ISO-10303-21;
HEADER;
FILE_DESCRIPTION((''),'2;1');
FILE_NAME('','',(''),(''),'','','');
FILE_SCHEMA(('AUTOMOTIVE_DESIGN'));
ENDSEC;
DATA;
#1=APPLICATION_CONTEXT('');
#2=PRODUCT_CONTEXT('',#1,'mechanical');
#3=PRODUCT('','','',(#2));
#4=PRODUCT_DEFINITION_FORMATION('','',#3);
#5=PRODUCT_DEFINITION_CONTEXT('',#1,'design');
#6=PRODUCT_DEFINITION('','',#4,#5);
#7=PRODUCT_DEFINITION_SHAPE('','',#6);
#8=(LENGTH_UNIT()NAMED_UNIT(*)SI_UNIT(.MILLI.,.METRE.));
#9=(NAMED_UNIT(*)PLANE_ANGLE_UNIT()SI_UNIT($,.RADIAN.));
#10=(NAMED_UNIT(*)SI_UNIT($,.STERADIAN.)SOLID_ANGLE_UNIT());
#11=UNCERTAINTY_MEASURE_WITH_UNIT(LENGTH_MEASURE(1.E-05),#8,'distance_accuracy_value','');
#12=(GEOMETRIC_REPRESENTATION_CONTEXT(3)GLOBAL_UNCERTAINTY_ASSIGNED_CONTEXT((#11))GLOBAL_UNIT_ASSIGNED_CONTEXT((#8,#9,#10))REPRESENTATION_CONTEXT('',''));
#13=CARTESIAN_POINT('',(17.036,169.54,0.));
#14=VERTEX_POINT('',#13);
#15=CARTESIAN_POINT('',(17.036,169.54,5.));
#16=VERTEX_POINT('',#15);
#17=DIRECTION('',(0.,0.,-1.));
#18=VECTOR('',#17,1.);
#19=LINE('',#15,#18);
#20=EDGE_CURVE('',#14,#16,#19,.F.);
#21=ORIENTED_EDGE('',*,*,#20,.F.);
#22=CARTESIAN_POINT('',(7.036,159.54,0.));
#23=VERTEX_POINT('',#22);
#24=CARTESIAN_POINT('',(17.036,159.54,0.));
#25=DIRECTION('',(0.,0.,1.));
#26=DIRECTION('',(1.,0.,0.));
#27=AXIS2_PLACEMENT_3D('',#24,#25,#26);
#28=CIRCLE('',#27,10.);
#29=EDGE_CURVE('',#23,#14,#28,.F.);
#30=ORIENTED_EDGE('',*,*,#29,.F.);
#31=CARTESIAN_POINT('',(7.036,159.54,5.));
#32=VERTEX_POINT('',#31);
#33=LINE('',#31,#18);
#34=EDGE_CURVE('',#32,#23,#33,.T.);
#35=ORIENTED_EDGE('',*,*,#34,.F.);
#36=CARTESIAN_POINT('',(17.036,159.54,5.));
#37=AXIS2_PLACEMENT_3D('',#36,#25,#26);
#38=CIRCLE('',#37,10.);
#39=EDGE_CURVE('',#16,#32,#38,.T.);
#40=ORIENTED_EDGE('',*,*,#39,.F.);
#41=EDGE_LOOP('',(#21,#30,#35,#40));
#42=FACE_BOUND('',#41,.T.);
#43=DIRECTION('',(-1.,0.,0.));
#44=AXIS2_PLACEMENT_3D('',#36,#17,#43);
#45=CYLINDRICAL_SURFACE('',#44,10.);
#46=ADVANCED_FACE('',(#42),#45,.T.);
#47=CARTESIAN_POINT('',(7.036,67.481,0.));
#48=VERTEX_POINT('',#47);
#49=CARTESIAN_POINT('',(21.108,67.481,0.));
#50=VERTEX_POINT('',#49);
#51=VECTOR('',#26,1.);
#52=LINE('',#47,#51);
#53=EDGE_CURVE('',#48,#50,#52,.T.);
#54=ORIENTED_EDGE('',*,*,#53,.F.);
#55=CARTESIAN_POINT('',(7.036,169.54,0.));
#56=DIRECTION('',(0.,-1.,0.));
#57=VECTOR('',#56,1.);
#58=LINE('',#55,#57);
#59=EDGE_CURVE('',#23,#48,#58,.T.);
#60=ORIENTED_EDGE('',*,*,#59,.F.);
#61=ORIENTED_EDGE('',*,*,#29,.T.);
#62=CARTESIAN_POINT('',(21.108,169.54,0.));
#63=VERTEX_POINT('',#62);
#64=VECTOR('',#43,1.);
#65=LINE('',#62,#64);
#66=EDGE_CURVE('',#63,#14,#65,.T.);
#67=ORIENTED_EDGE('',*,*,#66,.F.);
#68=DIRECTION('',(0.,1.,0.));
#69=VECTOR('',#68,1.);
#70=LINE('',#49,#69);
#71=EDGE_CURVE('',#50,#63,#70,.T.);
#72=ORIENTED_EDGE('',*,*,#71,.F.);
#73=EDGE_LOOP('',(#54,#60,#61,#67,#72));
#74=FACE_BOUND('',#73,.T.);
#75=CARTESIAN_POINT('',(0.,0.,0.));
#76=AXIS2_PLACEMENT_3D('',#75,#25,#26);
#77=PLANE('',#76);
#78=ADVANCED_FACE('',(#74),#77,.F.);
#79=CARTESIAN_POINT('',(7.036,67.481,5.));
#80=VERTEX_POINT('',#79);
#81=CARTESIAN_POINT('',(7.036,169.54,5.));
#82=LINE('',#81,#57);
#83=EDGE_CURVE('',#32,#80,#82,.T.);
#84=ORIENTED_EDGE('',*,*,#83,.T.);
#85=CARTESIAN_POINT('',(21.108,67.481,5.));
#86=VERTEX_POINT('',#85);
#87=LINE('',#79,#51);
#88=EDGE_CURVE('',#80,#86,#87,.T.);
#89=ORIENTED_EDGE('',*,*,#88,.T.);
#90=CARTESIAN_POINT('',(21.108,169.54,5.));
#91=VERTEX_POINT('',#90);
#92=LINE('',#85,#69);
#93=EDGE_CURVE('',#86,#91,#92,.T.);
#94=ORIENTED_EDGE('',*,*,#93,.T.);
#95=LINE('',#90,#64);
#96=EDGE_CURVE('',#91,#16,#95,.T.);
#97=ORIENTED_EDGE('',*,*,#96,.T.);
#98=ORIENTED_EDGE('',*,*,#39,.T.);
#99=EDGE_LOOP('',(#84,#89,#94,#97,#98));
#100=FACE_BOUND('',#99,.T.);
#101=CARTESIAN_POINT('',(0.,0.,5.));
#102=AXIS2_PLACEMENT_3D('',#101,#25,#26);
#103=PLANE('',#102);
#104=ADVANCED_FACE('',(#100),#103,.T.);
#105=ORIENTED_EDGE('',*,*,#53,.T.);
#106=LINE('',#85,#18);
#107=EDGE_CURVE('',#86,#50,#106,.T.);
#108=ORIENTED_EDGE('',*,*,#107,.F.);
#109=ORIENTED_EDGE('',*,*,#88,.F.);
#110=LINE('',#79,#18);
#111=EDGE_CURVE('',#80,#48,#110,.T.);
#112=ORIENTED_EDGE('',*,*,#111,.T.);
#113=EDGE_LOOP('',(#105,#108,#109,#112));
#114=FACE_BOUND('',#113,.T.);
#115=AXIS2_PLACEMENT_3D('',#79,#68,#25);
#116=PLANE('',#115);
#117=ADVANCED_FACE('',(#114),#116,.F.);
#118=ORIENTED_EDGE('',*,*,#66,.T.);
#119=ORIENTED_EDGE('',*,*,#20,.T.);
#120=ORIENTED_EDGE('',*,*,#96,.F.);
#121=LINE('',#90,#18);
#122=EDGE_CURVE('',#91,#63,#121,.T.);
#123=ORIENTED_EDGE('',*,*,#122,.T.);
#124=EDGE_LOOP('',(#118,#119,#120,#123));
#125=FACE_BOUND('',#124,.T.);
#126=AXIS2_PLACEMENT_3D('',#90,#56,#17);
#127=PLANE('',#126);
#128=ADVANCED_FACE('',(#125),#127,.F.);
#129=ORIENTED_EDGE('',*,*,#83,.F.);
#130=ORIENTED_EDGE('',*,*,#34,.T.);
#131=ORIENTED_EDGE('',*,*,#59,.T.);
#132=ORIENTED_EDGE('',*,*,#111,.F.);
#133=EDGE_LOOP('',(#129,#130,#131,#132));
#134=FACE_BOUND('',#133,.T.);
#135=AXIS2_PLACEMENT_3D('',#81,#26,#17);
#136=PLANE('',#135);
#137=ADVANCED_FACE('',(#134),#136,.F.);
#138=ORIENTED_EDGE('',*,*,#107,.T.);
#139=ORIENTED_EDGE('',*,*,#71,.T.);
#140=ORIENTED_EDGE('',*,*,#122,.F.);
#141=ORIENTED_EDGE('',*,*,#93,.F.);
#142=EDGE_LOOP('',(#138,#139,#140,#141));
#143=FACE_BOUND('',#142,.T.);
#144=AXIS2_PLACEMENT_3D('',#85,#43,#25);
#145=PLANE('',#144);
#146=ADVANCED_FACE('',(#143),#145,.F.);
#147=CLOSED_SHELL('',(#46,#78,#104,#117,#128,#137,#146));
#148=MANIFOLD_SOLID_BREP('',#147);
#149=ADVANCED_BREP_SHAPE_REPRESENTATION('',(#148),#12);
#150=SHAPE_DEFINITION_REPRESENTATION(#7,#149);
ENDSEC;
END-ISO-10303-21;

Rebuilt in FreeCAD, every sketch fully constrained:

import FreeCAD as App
import Part
import Sketcher
Q = App.Units.Quantity


def edges_at(feature, points):
    """Names of the edges that pass closest to the given points."""
    edges = feature.Shape.Edges
    near = lambda p: min(range(len(edges)), key=lambda i: edges[i].distToShape(Part.Vertex(*p))[0])
    return sorted({f"Edge{near(p) + 1}" for p in points})

doc = App.newDocument("Part")
body = doc.addObject("PartDesign::Body", "Body")

# Sketch on XY plane
sketch1 = body.newObject("Sketcher::SketchObject", "Sketch")
sketch1.AttachmentSupport = (doc.getObject("XY_Plane"), [""])
sketch1.MapMode = "FlatFace"
sketch1.addGeometry([
    Part.LineSegment(App.Vector(7, 170, 0), App.Vector(7, 67, 0)),
    Part.LineSegment(App.Vector(7, 67, 0), App.Vector(21, 67, 0)),
    Part.LineSegment(App.Vector(21, 67, 0), App.Vector(21, 170, 0)),
    Part.LineSegment(App.Vector(21, 170, 0), App.Vector(7, 170, 0)),
], False)
sketch1.addConstraint([
    Sketcher.Constraint("Coincident", 0, 2, 1, 1),
    Sketcher.Constraint("Coincident", 1, 2, 2, 1),
    Sketcher.Constraint("Coincident", 2, 2, 3, 1),
    Sketcher.Constraint("Coincident", 3, 2, 0, 1),
    Sketcher.Constraint("Vertical", 0),
    Sketcher.Constraint("Horizontal", 1),
    Sketcher.Constraint("Vertical", 2),
    Sketcher.Constraint("Horizontal", 3),
    Sketcher.Constraint("DistanceX", 1, 1, 1, 2, Q("14.072 mm")),
    Sketcher.Constraint("DistanceY", 0, 2, 0, 1, Q("102.059 mm")),
    Sketcher.Constraint("DistanceY", -1, 1, 2, 2, Q("169.54 mm")),
    Sketcher.Constraint("DistanceX", -1, 1, 0, 2, Q("7.036 mm")),
])
pad1 = body.newObject("PartDesign::Pad", "Pad")
pad1.Profile = sketch1
pad1.Length = 5
doc.recompute()

fillet = body.newObject("PartDesign::Fillet", "Fillet")
fillet.Base = (pad1, edges_at(pad1, [(7.036, 169.54, 2.5)]))
fillet.Radius = 10

doc.recompute()
